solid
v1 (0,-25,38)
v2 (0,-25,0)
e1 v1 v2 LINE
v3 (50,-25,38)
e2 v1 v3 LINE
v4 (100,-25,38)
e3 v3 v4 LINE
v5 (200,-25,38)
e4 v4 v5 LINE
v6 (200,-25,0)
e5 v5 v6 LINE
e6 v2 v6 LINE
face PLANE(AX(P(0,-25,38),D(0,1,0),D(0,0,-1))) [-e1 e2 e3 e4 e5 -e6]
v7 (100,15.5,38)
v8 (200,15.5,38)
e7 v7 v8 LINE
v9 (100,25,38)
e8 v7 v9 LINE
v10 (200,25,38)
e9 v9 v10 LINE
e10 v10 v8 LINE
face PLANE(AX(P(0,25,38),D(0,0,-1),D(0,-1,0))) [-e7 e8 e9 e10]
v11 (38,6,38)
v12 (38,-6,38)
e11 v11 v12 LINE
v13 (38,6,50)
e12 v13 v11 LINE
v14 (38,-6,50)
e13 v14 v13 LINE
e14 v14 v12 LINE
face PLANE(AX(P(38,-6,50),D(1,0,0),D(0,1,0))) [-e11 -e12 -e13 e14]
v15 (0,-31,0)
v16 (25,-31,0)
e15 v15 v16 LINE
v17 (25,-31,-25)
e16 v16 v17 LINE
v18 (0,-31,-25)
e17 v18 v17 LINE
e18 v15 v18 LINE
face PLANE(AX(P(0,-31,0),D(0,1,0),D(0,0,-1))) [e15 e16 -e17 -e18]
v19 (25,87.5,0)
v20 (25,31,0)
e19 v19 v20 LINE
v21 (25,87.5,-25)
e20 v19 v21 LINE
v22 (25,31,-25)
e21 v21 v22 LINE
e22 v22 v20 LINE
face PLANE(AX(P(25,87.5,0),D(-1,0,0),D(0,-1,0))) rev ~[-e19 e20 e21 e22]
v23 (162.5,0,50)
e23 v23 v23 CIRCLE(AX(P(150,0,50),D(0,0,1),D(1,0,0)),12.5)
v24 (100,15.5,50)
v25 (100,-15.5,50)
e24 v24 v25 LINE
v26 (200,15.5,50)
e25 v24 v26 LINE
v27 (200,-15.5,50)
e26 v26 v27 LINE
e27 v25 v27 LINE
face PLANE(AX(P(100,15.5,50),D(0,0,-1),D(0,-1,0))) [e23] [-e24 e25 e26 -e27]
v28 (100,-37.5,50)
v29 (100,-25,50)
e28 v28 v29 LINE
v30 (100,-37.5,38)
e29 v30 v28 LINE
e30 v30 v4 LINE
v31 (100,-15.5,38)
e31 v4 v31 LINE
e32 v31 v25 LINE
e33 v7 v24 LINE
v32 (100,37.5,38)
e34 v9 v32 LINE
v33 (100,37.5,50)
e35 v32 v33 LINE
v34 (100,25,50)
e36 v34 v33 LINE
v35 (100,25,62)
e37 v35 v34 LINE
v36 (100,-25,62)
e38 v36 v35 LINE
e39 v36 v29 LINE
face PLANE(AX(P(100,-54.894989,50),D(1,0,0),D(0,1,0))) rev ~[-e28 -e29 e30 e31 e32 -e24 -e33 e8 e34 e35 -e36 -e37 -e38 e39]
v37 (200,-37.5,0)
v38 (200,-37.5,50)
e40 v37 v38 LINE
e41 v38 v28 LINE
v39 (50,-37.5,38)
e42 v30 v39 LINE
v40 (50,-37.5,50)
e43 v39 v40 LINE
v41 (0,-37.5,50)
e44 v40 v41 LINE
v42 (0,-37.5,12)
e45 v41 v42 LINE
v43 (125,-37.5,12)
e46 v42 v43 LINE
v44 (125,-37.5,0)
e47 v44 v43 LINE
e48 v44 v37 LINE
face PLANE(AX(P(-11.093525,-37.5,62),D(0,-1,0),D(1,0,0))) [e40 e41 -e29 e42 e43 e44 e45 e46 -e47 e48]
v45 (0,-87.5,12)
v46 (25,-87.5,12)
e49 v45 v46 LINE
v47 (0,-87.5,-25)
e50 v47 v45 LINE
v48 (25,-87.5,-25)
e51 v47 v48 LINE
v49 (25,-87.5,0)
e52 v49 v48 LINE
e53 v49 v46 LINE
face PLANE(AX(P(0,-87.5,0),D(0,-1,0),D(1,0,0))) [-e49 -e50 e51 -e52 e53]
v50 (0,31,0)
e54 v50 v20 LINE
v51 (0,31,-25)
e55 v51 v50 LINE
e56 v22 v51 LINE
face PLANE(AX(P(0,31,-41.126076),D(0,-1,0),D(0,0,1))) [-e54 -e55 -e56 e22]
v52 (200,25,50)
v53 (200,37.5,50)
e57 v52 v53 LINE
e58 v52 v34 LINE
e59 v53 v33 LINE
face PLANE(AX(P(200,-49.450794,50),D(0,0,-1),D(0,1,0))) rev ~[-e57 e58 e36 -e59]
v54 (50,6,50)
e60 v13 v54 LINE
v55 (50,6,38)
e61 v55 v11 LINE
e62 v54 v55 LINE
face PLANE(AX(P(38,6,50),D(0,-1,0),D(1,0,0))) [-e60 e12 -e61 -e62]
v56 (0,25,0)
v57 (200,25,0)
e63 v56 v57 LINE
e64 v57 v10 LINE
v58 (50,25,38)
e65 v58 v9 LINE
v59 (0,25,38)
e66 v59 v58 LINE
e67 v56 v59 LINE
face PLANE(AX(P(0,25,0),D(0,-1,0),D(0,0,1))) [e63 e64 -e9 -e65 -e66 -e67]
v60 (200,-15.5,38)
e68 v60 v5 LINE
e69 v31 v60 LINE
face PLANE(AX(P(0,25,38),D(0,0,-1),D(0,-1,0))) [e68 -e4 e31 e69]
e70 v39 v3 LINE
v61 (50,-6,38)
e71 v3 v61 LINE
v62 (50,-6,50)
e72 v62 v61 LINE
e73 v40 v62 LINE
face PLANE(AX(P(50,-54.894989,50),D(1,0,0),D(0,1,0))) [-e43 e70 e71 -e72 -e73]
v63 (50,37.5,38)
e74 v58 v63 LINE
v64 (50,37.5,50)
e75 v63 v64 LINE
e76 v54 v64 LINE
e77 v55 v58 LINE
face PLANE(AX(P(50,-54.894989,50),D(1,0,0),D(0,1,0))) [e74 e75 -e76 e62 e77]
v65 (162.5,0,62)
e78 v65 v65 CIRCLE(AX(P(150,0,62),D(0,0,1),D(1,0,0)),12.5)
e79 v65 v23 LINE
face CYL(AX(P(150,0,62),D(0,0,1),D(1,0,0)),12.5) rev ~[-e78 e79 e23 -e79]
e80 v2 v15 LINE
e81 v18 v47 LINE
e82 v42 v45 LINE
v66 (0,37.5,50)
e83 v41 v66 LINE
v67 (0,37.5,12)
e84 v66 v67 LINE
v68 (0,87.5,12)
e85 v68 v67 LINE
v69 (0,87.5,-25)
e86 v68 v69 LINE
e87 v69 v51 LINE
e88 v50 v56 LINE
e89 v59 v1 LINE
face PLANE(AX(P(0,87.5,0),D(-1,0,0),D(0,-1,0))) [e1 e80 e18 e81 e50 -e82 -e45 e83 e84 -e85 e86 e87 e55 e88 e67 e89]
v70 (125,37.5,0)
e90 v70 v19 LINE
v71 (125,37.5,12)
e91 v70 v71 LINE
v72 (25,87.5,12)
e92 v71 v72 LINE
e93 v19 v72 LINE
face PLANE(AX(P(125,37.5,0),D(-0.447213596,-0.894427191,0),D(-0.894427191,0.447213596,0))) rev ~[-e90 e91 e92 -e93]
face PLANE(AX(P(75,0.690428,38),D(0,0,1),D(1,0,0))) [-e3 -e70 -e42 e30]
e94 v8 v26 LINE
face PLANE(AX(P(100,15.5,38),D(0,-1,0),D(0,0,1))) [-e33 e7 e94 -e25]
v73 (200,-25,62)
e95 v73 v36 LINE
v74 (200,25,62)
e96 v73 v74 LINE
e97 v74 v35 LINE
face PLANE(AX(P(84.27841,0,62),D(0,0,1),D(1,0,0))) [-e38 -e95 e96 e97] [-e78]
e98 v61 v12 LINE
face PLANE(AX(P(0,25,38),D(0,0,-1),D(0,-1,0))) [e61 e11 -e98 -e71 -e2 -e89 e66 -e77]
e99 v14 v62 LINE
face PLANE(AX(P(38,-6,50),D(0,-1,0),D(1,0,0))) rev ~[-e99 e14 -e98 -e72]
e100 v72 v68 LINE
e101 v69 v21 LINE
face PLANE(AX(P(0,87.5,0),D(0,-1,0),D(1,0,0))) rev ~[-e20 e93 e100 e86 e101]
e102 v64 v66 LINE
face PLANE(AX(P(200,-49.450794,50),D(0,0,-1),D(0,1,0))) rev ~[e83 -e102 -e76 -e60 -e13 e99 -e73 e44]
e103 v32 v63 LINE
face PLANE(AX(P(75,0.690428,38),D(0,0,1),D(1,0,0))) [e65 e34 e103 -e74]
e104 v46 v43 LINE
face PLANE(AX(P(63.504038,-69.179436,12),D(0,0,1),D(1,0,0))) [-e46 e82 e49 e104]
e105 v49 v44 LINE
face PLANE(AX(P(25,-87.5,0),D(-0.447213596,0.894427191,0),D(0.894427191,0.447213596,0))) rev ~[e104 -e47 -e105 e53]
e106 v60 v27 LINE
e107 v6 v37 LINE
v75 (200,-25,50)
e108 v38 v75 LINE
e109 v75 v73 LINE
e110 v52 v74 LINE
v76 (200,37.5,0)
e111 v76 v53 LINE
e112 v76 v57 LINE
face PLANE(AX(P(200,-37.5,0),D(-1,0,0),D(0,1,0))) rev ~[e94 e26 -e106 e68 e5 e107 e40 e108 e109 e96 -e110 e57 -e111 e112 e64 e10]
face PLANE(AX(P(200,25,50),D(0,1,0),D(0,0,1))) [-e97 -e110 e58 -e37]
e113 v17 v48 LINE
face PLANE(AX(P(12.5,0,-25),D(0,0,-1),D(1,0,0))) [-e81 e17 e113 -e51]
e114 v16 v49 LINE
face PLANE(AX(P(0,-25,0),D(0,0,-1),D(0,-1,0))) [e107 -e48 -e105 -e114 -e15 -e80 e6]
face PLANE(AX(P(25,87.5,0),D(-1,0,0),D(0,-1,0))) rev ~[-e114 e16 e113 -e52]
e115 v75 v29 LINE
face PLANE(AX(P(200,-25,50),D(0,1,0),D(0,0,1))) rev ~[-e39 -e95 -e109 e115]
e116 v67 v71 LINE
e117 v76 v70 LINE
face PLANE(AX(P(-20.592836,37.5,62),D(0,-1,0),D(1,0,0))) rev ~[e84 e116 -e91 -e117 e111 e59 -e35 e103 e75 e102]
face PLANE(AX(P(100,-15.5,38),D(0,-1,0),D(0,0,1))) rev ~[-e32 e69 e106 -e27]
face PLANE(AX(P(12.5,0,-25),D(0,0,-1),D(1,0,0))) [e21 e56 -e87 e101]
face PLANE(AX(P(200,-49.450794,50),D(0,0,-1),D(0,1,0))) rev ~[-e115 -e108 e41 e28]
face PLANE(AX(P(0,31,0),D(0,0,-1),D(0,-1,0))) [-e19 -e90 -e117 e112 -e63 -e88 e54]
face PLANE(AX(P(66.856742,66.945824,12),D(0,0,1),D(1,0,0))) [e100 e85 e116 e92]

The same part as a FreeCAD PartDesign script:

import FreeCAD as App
import Part
import Sketcher
from FreeCAD import Vector

doc = App.newDocument("Part")
body = doc.addObject("PartDesign::Body", "Body")

sketch1 = body.newObject("Sketcher::SketchObject", "Sketch")
sketch1.AttachmentSupport = (doc.getObject("XY_Plane"), [""])
sketch1.MapMode = "FlatFace"
sketch1.addGeometry([
    Part.LineSegment(Vector(0, 88, 0), Vector(0, -88, 0)),
    Part.LineSegment(Vector(0, -88, 0), Vector(25, -88, 0)),
    Part.LineSegment(Vector(25, -88, 0), Vector(125, -38, 0)),
    Part.LineSegment(Vector(125, -38, 0), Vector(200, -38, 0)),
    Part.LineSegment(Vector(200, -38, 0), Vector(200, 38, 0)),
    Part.LineSegment(Vector(200, 38, 0), Vector(125, 38, 0)),
    Part.LineSegment(Vector(125, 38, 0), Vector(25, 88, 0)),
    Part.LineSegment(Vector(25, 88, 0), Vector(0, 88, 0)),
], False)
sketch1.addConstraint([
    Sketcher.Constraint("Coincident", 0, 2, 1, 1),
    Sketcher.Constraint("Coincident", 1, 2, 2, 1),
    Sketcher.Constraint("Coincident", 2, 2, 3, 1),
    Sketcher.Constraint("Coincident", 3, 2, 4, 1),
    Sketcher.Constraint("Coincident", 4, 2, 5, 1),
    Sketcher.Constraint("Coincident", 5, 2, 6, 1),
    Sketcher.Constraint("Coincident", 6, 2, 7, 1),
    Sketcher.Constraint("Coincident", 7, 2, 0, 1),
    Sketcher.Constraint("Vertical", 0),
    Sketcher.Constraint("Horizontal", 1),
    Sketcher.Constraint("Horizontal", 3),
    Sketcher.Constraint("Vertical", 4),
    Sketcher.Constraint("Horizontal", 5),
    Sketcher.Constraint("Horizontal", 7),
    Sketcher.Constraint("Symmetric", 0, 2, 7, 2, -1, 1),
    Sketcher.Constraint("Symmetric", 2, 2, 5, 2, -1),
    Sketcher.Constraint("Vertical", 1, 2, 6, 2),
    Sketcher.Constraint("Equal", 5, 4),
    Sketcher.Constraint("DistanceX", 1, 1, 1, 2, 25.0),
    Sketcher.Constraint("DistanceX", 3, 1, 3, 2, 75.0),
    Sketcher.Constraint("DistanceY", 0, 2, 0, 1, 175.0),
    Sketcher.Constraint("DistanceX", -1, 1, 2, 2, 125.0),
])
pad1 = body.newObject("PartDesign::Pad", "Pad")
pad1.Profile = sketch1
pad1.Length = 62

sketch2 = body.newObject("Sketcher::SketchObject", "Sketch001")
sketch2.AttachmentSupport = (doc.getObject("XY_Plane"), [""])
sketch2.MapMode = "FlatFace"
sketch2.AttachmentOffset = App.Placement(Vector(0, 0, 62), App.Rotation())
sketch2.addGeometry([
    Part.LineSegment(Vector(-21, 96, 0), Vector(-21, 38, 0)),
    Part.LineSegment(Vector(-21, 38, 0), Vector(154, 38, 0)),
    Part.LineSegment(Vector(154, 38, 0), Vector(154, 96, 0)),
    Part.LineSegment(Vector(154, 96, 0), Vector(-21, 96, 0)),
    Part.LineSegment(Vector(-11, -38, 0), Vector(-11, -101, 0)),
    Part.LineSegment(Vector(-11, -101, 0), Vector(138, -101, 0)),
    Part.LineSegment(Vector(138, -101, 0), Vector(138, -38, 0)),
    Part.LineSegment(Vector(138, -38, 0), Vector(-11, -38, 0)),
], False)
sketch2.addConstraint([
    Sketcher.Constraint("Coincident", 0, 2, 1, 1),
    Sketcher.Constraint("Coincident", 1, 2, 2, 1),
    Sketcher.Constraint("Coincident", 2, 2, 3, 1),
    Sketcher.Constraint("Coincident", 3, 2, 0, 1),
    Sketcher.Constraint("Coincident", 4, 2, 5, 1),
    Sketcher.Constraint("Coincident", 5, 2, 6, 1),
    Sketcher.Constraint("Coincident", 6, 2, 7, 1),
    Sketcher.Constraint("Coincident", 7, 2, 4, 1),
    Sketcher.Constraint("Vertical", 0),
    Sketcher.Constraint("Horizontal", 1),
    Sketcher.Constraint("Vertical", 2),
    Sketcher.Constraint("Horizontal", 3),
    Sketcher.Constraint("Vertical", 4),
    Sketcher.Constraint("Horizontal", 5),
    Sketcher.Constraint("Vertical", 6),
    Sketcher.Constraint("Horizontal", 7),
    Sketcher.Constraint("DistanceY", 6, 2, 1, 2, 75.0),
    Sketcher.Constraint("DistanceY", -1, 1, 0, 2, 37.5),
    Sketcher.Constraint("DistanceX", -1, 1, 5, 2, 138.1016),
    Sketcher.Constraint("DistanceX", 1, 1, 1, 2, 174.899156),
    Sketcher.Constraint("DistanceX", 5, 1, 5, 2, 149.195125),
    Sketcher.Constraint("DistanceY", 0, 2, 0, 1, 58.891647),
    Sketcher.Constraint("DistanceY", 4, 2, 4, 1, 63.358872),
    Sketcher.Constraint("DistanceX", -1, 1, 1, 2, 154.30632),
])
pocket1 = body.newObject("PartDesign::Pocket", "Pocket")
pocket1.Profile = sketch2
pocket1.Length = 50

sketch3 = body.newObject("Sketcher::SketchObject", "Sketch002")
sketch3.AttachmentSupport = (doc.getObject("YZ_Plane"), [""])
sketch3.MapMode = "FlatFace"
sketch3.AttachmentOffset = App.Placement(Vector(0, 0, 200), App.Rotation())
sketch3.addGeometry([
    Part.LineSegment(Vector(-49, 68, 0), Vector(-49, 50, 0)),
    Part.LineSegment(Vector(-49, 50, 0), Vector(-25, 50, 0)),
    Part.LineSegment(Vector(-25, 50, 0), Vector(-25, 68, 0)),
    Part.LineSegment(Vector(-25, 68, 0), Vector(-49, 68, 0)),
    Part.LineSegment(Vector(25, 68, 0), Vector(25, 50, 0)),
    Part.LineSegment(Vector(25, 50, 0), Vector(50, 50, 0)),
    Part.LineSegment(Vector(50, 50, 0), Vector(50, 68, 0)),
    Part.LineSegment(Vector(50, 68, 0), Vector(25, 68, 0)),
], False)
sketch3.addConstraint([
    Sketcher.Constraint("Coincident", 0, 2, 1, 1),
    Sketcher.Constraint("Coincident", 1, 2, 2, 1),
    Sketcher.Constraint("Coincident", 2, 2, 3, 1),
    Sketcher.Constraint("Coincident", 3, 2, 0, 1),
    Sketcher.Constraint("Coincident", 4, 2, 5, 1),
    Sketcher.Constraint("Coincident", 5, 2, 6, 1),
    Sketcher.Constraint("Coincident", 6, 2, 7, 1),
    Sketcher.Constraint("Coincident", 7, 2, 4, 1),
    Sketcher.Constraint("Vertical", 0),
    Sketcher.Constraint("Horizontal", 1),
    Sketcher.Constraint("Vertical", 2),
    Sketcher.Constraint("Horizontal", 3),
    Sketcher.Constraint("Vertical", 4),
    Sketcher.Constraint("Horizontal", 5),
    Sketcher.Constraint("Vertical", 6),
    Sketcher.Constraint("Horizontal", 7),
    Sketcher.Constraint("Symmetric", 1, 2, 4, 2, -2),
    Sketcher.Constraint("Horizontal", 3, 2, 6, 2),
    Sketcher.Constraint("DistanceY", -1, 1, 0, 2, 50.0),
    Sketcher.Constraint("DistanceX", 1, 2, -1, 1, 25.0),
    Sketcher.Constraint("DistanceX", 5, 1, 5, 2, 25.01263),
    Sketcher.Constraint("DistanceX", 1, 1, 1, 2, 24.450794),
    Sketcher.Constraint("DistanceY", 0, 2, 0, 1, 18.271757),
])
pocket2 = body.newObject("PartDesign::Pocket", "Pocket001")
pocket2.Profile = sketch3
pocket2.Type = "ThroughAll"

sketch4 = body.newObject("Sketcher::SketchObject", "Sketch003")
sketch4.AttachmentSupport = (doc.getObject("XY_Plane"), [""])
sketch4.MapMode = "FlatFace"
sketch4.AttachmentOffset = App.Placement(Vector(0, 0, 62), App.Rotation())
sketch4.addGeometry([
    Part.LineSegment(Vector(-9, 51, 0), Vector(-9, -49, 0)),
    Part.LineSegment(Vector(-9, -49, 0), Vector(100, -49, 0)),
    Part.LineSegment(Vector(100, -49, 0), Vector(100, 51, 0)),
    Part.LineSegment(Vector(100, 51, 0), Vector(-9, 51, 0)),
], False)
sketch4.addConstraint([
    Sketcher.Constraint("Coincident", 0, 2, 1, 1),
    Sketcher.Constraint("Coincident", 1, 2, 2, 1),
    Sketcher.Constraint("Coincident", 2, 2, 3, 1),
    Sketcher.Constraint("Coincident", 3, 2, 0, 1),
    Sketcher.Constraint("Vertical", 0),
    Sketcher.Constraint("Horizontal", 1),
    Sketcher.Constraint("Vertical", 2),
    Sketcher.Constraint("Horizontal", 3),
    Sketcher.Constraint("DistanceX", -1, 1, 1, 2, 100.0),
    Sketcher.Constraint("DistanceY", 0, 2, 0, 1, 100.191001),
    Sketcher.Constraint("DistanceX", 1, 1, 1, 2, 109.462605),
    Sketcher.Constraint("DistanceY", 0, 2, -1, 1, 48.947578),
])
pocket3 = body.newObject("PartDesign::Pocket", "Pocket002")
pocket3.Profile = sketch4
pocket3.Length = 12

sketch5 = body.newObject("Sketcher::SketchObject", "Sketch004")
sketch5.AttachmentSupport = (doc.getObject("XY_Plane"), [""])
sketch5.MapMode = "FlatFace"
sketch5.AttachmentOffset = App.Placement(Vector(0, 0, 50), App.Rotation())
sketch5.addGeometry([
    Part.LineSegment(Vector(50, 56, 0), Vector(50, -55, 0)),
    Part.LineSegment(Vector(50, -55, 0), Vector(100, -55, 0)),
    Part.LineSegment(Vector(100, -55, 0), Vector(100, 56, 0)),
    Part.LineSegment(Vector(100, 56, 0), Vector(50, 56, 0)),
], False)
sketch5.addConstraint([
    Sketcher.Constraint("Coincident", 0, 2, 1, 1),
    Sketcher.Constraint("Coincident", 1, 2, 2, 1),
    Sketcher.Constraint("Coincident", 2, 2, 3, 1),
    Sketcher.Constraint("Coincident", 3, 2, 0, 1),
    Sketcher.Constraint("Vertical", 0),
    Sketcher.Constraint("Horizontal", 1),
    Sketcher.Constraint("Vertical", 2),
    Sketcher.Constraint("Horizontal", 3),
    Sketcher.Constraint("DistanceX", 1, 1, 1, 2, 50.0),
    Sketcher.Constraint("DistanceX", -1, 1, 0, 2, 50.0),
    Sketcher.Constraint("DistanceY", 0, 2, 0, 1, 111.170834),
    Sketcher.Constraint("DistanceY", 0, 2, -1, 1, 54.894989),
])
pocket4 = body.newObject("PartDesign::Pocket", "Pocket003")
pocket4.Profile = sketch5
pocket4.Length = 12

sketch6 = body.newObject("Sketcher::SketchObject", "Sketch005")
sketch6.AttachmentSupport = (doc.getObject("XY_Plane"), [""])
sketch6.MapMode = "FlatFace"
sketch6.addGeometry([
    Part.LineSegment(Vector(0, -88, 0), Vector(0, 88, 0)),
    Part.LineSegment(Vector(0, 88, 0), Vector(25, 88, 0)),
    Part.LineSegment(Vector(25, 88, 0), Vector(25, -88, 0)),
    Part.LineSegment(Vector(25, -88, 0), Vector(0, -88, 0)),
], False)
sketch6.addConstraint([
    Sketcher.Constraint("Coincident", 0, 2, 1, 1),
    Sketcher.Constraint("Coincident", 1, 2, 2, 1),
    Sketcher.Constraint("Coincident", 2, 2, 3, 1),
    Sketcher.Constraint("Coincident", 3, 2, 0, 1),
    Sketcher.Constraint("Vertical", 0),
    Sketcher.Constraint("Horizontal", 1),
    Sketcher.Constraint("Vertical", 2),
    Sketcher.Constraint("Horizontal", 3),
    Sketcher.Constraint("Symmetric", 0, 2, 3, 2, -1, 1),
    Sketcher.Constraint("DistanceX", 1, 1, 1, 2, 25.0),
    Sketcher.Constraint("DistanceY", 0, 1, 0, 2, 175.0),
])
pad2 = body.newObject("PartDesign::Pad", "Pad001")
pad2.Profile = sketch6
pad2.Length = 25
pad2.Reversed = True

sketch7 = body.newObject("Sketcher::SketchObject", "Sketch006")
sketch7.AttachmentSupport = (doc.getObject("YZ_Plane"), [""])
sketch7.MapMode = "FlatFace"
sketch7.addGeometry([
    Part.LineSegment(Vector(-25, 38, 0), Vector(25, 38, 0)),
    Part.LineSegment(Vector(25, 38, 0), Vector(25, 0, 0)),
    Part.LineSegment(Vector(25, 0, 0), Vector(31, 0, 0)),
    Part.LineSegment(Vector(31, 0, 0), Vector(31, -41, 0)),
    Part.LineSegment(Vector(31, -41, 0), Vector(-31, -41, 0)),
    Part.LineSegment(Vector(-31, -41, 0), Vector(-31, 0, 0)),
    Part.LineSegment(Vector(-31, 0, 0), Vector(-25, 0, 0)),
    Part.LineSegment(Vector(-25, 0, 0), Vector(-25, 38, 0)),
], False)
sketch7.addConstraint([
    Sketcher.Constraint("Coincident", 0, 2, 1, 1),
    Sketcher.Constraint("Coincident", 1, 2, 2, 1),
    Sketcher.Constraint("Coincident", 2, 2, 3, 1),
    Sketcher.Constraint("Coincident", 3, 2, 4, 1),
    Sketcher.Constraint("Coincident", 4, 2, 5, 1),
    Sketcher.Constraint("Coincident", 5, 2, 6, 1),
    Sketcher.Constraint("Coincident", 6, 2, 7, 1),
    Sketcher.Constraint("Coincident", 7, 2, 0, 1),
    Sketcher.Constraint("Horizontal", 0),
    Sketcher.Constraint("Vertical", 1),
    Sketcher.Constraint("Horizontal", 2),
    Sketcher.Constraint("Vertical", 3),
    Sketcher.Constraint("Horizontal", 4),
    Sketcher.Constraint("Vertical", 5),
    Sketcher.Constraint("Horizontal", 6),
    Sketcher.Constraint("Vertical", 7),
    Sketcher.Constraint("Symmetric", 2, 2, 5, 2, -1, 1),
    Sketcher.Constraint("Symmetric", 1, 2, 6, 2, -2),
    Sketcher.Constraint("DistanceX", 0, 1, 0, 2, 50.0),
    Sketcher.Constraint("DistanceX", 2, 1, 2, 2, 6.0),
    Sketcher.Constraint("DistanceY", 1, 2, 1, 1, 38.0),
    Sketcher.Constraint("DistanceY", 3, 2, 3, 1, 41.126076),
])
pocket5 = body.newObject("PartDesign::Pocket", "Pocket004")
pocket5.Profile = sketch7
pocket5.Type = "ThroughAll"
pocket5.Reversed = True

sketch8 = body.newObject("Sketcher::SketchObject", "Sketch007")
sketch8.AttachmentSupport = (doc.getObject("YZ_Plane"), [""])
sketch8.MapMode = "FlatFace"
sketch8.AttachmentOffset = App.Placement(Vector(0, 0, 100), App.Rotation())
sketch8.addGeometry([
    Part.LineSegment(Vector(16, 50, 0), Vector(16, 38, 0)),
    Part.LineSegment(Vector(16, 38, 0), Vector(-16, 38, 0)),
    Part.LineSegment(Vector(-16, 38, 0), Vector(-16, 50, 0)),
    Part.LineSegment(Vector(-16, 50, 0), Vector(16, 50, 0)),
], False)
sketch8.addConstraint([
    Sketcher.Constraint("Coincident", 0, 2, 1, 1),
    Sketcher.Constraint("Coincident", 1, 2, 2, 1),
    Sketcher.Constraint("Coincident", 2, 2, 3, 1),
    Sketcher.Constraint("Coincident", 3, 2, 0, 1),
    Sketcher.Constraint("Vertical", 0),
    Sketcher.Constraint("Horizontal", 1),
    Sketcher.Constraint("Vertical", 2),
    Sketcher.Constraint("Horizontal", 3),
    Sketcher.Constraint("DistanceX", 1, 2, 1, 1, 31.0),
    Sketcher.Constraint("DistanceY", 0, 2, 0, 1, 12.0),
    Sketcher.Constraint("DistanceY", -1, 1, 0, 2, 38.0),
    Sketcher.Constraint("DistanceX", -1, 1, 0, 2, 15.5),
])
pocket6 = body.newObject("PartDesign::Pocket", "Pocket005")
pocket6.Profile = sketch8
pocket6.Type = "ThroughAll"
pocket6.Reversed = True

sketch9 = body.newObject("Sketcher::SketchObject", "Sketch008")
sketch9.AttachmentSupport = (doc.getObject("XY_Plane"), [""])
sketch9.MapMode = "FlatFace"
sketch9.AttachmentOffset = App.Placement(Vector(0, 0, 62), App.Rotation())
sketch9.addGeometry(Part.Circle(Vector(150, 0, 0), Vector(0, 0, 1), 12), False)
sketch9.addConstraint([
    Sketcher.Constraint("PointOnObject", 0, 3, -1),
    Sketcher.Constraint("Diameter", 0, 25.0),
    Sketcher.Constraint("DistanceX", -1, 1, 0, 3, 150.0),
])
pocket7 = body.newObject("PartDesign::Pocket", "Pocket006")
pocket7.Profile = sketch9
pocket7.Type = "ThroughAll"

sketch10 = body.newObject("Sketcher::SketchObject", "Sketch009")
sketch10.AttachmentSupport = (doc.getObject("XY_Plane"), [""])
sketch10.MapMode = "FlatFace"
sketch10.AttachmentOffset = App.Placement(Vector(0, 0, 50), App.Rotation())
sketch10.addGeometry([
    Part.LineSegment(Vector(38, 6, 0), Vector(38, -6, 0)),
    Part.LineSegment(Vector(38, -6, 0), Vector(64, -6, 0)),
    Part.LineSegment(Vector(64, -6, 0), Vector(64, 6, 0)),
    Part.LineSegment(Vector(64, 6, 0), Vector(38, 6, 0)),
], False)
sketch10.addConstraint([
    Sketcher.Constraint("Coincident", 0, 2, 1, 1),
    Sketcher.Constraint("Coincident", 1, 2, 2, 1),
    Sketcher.Constraint("Coincident", 2, 2, 3, 1),
    Sketcher.Constraint("Coincident", 3, 2, 0, 1),
    Sketcher.Constraint("Vertical", 0),
    Sketcher.Constraint("Horizontal", 1),
    Sketcher.Constraint("Vertical", 2),
    Sketcher.Constraint("Horizontal", 3),
    Sketcher.Constraint("DistanceY", 0, 2, 0, 1, 12.0),
    Sketcher.Constraint("DistanceX", -1, 1, 0, 2, 38.0),
    Sketcher.Constraint("DistanceY", 0, 2, -1, 1, 6.0),
    Sketcher.Constraint("DistanceX", 1, 1, 1, 2, 25.552227),
])
pocket8 = body.newObject("PartDesign::Pocket", "Pocket007")
pocket8.Profile = sketch10
pocket8.Type = "ThroughAll"

doc.recompute()
